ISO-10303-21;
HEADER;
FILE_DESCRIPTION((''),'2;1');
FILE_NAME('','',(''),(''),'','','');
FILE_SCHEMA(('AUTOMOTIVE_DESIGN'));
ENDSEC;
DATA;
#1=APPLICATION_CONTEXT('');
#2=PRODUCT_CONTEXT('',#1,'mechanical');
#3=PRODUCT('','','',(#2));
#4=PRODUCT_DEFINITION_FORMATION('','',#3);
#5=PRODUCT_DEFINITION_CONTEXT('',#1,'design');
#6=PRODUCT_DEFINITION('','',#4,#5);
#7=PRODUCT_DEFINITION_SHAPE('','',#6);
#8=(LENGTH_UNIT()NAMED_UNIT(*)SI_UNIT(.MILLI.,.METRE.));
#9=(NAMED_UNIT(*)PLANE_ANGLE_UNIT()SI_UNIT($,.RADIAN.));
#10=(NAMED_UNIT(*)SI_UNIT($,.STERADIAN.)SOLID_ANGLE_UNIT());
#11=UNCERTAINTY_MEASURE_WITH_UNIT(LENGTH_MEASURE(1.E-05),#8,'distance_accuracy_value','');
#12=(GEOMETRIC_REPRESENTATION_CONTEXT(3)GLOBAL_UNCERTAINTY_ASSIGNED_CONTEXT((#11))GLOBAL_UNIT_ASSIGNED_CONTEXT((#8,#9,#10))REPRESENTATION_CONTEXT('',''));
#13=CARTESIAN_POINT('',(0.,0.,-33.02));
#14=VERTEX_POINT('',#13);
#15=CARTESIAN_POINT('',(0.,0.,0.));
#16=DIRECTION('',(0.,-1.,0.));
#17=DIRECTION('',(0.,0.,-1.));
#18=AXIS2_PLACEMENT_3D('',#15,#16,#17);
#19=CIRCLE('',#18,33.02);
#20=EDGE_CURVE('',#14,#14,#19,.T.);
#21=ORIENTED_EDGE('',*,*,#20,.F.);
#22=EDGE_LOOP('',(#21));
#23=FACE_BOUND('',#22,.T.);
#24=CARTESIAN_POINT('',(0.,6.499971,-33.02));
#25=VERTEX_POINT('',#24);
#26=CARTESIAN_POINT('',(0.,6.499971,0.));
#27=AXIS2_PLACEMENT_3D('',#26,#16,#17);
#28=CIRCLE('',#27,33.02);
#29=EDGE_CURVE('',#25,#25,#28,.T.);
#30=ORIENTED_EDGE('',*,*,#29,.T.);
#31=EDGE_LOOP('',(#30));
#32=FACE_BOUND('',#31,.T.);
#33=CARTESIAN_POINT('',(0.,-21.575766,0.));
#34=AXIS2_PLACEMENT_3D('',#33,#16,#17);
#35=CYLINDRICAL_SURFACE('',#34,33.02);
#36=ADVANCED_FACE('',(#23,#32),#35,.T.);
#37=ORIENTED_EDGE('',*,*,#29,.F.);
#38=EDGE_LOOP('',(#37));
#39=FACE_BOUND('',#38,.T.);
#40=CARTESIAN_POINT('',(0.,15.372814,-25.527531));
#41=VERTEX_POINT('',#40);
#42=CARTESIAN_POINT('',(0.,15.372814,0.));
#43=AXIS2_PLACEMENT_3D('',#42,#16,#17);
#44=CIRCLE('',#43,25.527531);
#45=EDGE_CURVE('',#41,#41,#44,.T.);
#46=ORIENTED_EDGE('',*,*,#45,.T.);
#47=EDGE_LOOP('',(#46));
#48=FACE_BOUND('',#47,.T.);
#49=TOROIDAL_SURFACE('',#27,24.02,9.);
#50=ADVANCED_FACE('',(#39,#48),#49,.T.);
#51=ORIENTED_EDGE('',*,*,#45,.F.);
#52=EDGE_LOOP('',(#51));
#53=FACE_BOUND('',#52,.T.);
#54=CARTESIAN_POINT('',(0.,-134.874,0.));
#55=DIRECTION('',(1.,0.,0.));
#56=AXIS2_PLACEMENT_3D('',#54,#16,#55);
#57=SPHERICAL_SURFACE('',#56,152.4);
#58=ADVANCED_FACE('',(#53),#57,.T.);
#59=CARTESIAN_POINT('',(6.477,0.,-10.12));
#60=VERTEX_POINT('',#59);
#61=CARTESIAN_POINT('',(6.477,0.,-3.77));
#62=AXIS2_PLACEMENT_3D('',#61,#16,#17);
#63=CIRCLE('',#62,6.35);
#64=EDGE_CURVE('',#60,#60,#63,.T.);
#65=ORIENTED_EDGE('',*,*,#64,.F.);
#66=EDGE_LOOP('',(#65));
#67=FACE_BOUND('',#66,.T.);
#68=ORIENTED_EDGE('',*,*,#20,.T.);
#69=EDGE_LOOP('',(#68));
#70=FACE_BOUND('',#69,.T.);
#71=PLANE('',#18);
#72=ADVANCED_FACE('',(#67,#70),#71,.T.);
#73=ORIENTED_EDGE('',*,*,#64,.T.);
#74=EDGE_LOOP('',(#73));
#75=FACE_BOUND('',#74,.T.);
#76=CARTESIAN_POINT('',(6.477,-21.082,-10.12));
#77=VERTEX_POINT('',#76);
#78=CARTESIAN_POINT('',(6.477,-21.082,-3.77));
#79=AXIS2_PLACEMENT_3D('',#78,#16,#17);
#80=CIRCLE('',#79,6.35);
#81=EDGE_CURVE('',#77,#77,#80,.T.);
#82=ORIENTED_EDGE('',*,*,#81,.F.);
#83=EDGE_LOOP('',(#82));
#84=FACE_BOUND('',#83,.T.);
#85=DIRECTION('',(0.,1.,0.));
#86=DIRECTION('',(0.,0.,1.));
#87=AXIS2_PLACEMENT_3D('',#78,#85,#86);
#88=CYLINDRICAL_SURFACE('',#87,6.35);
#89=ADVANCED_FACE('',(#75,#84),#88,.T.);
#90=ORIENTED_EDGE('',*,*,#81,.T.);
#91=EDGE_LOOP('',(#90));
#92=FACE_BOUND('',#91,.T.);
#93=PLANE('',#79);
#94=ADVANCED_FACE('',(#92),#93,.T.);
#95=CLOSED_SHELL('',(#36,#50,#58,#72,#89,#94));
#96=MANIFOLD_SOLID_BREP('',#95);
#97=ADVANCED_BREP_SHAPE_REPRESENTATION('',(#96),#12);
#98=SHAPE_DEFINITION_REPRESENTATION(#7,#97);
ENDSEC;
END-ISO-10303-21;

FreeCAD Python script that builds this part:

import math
import FreeCAD as App
import Part
import Sketcher

V = App.Vector
Q = App.Units.Quantity

doc = App.newDocument("Part")
params = doc.addObject("Spreadsheet::Sheet", "Params")
for row, (alias, value) in enumerate([
    ("sketch1_radius", "6 in"),
    ("sketch1_width", "1.3 in"),
    ("sketch1_height", "0.69 in"),
    ("revolution_angle", "360 deg"),
    ("sketch2_diameter", "0.5 in"),
    ("pad1_length", "0.83 in"),
], start=1):
    params.set(f"A{row}", alias)
    params.set(f"B{row}", "=" + value)
    params.setAlias(f"B{row}", alias)

body = doc.addObject("PartDesign::Body", "Body")

sketch1 = doc.addObject("Sketcher::SketchObject", "Sketch")
body.addObject(sketch1)
sketch1.AttachmentSupport = (doc.XY_Plane, [""])
sketch1.MapMode = "FlatFace"
sketch1.addGeometry([
    Part.LineSegment(V(0, 0, 0), V(33.02, 0, 0)),
    Part.LineSegment(V(33.02, 0, 0), V(33.02, 6.499971, 0)),
    Part.ArcOfCircle(Part.Circle(V(24.02, 6.499971, 0), V(0, 0, 1), 9), math.radians(0), math.radians(80.357302)),
    Part.ArcOfCircle(Part.Circle(V(0, -134.874, 0), V(0, 0, 1), 152.4), math.radians(80.357302), math.radians(90)),
    Part.LineSegment(V(0, 17.526, 0), V(0, 0, 0)),
], False)
sketch1.addConstraint([
    Sketcher.Constraint("Coincident", 0, 2, 1, 1),
    Sketcher.Constraint("Tangent", 1, 2, 2, 1),
    Sketcher.Constraint("Tangent", 2, 2, 3, 1),
    Sketcher.Constraint("Coincident", 3, 2, 4, 1),
    Sketcher.Constraint("Coincident", 4, 2, 0, 1),
    Sketcher.Constraint("Horizontal", 0),
    Sketcher.Constraint("Vertical", 1),
    Sketcher.Constraint("Vertical", 4),
    Sketcher.Constraint("Coincident", 4, 2, -1, 1),
    Sketcher.Constraint("PointOnObject", 3, 3, -2),
    Sketcher.Constraint("Radius", 3, Q("6 in")),
    Sketcher.Constraint("DistanceX", 0, 1, 0, 2, Q("1.3 in")),
    Sketcher.Constraint("DistanceY", 4, 2, 4, 1, Q("0.69 in")),
    Sketcher.Constraint("Radius", 2, 9.0),
])
sketch1.setExpression("Constraints[10]", "Params.sketch1_radius")
sketch1.setExpression("Constraints[11]", "Params.sketch1_width")
sketch1.setExpression("Constraints[12]", "Params.sketch1_height")
revolution = doc.addObject("PartDesign::Revolution", "Revolution")
body.addObject(revolution)
revolution.Profile = sketch1
revolution.ReferenceAxis = (sketch1, ["V_Axis"])
revolution.setExpression("Angle", "Params.revolution_angle")

sketch2 = doc.addObject("Sketcher::SketchObject", "Sketch001")
body.addObject(sketch2)
sketch2.AttachmentSupport = (doc.XZ_Plane, [""])
sketch2.MapMode = "FlatFace"
sketch2.addGeometry(Part.Circle(V(6.477, -3.77, 0), V(0, 0, 1), 6.35), False)
sketch2.addConstraint([
    Sketcher.Constraint("Diameter", 0, Q("0.5 in")),
    Sketcher.Constraint("DistanceX", -1, 1, 0, 3, Q("0.255 in")),
    Sketcher.Constraint("DistanceY", 0, 3, -1, 1, 3.77),
])
sketch2.setExpression("Constraints[0]", "Params.sketch2_diameter")
pad1 = doc.addObject("PartDesign::Pad", "Pad")
body.addObject(pad1)
pad1.Profile = sketch2
pad1.setExpression("Length", "Params.pad1_length")

doc.recompute()
